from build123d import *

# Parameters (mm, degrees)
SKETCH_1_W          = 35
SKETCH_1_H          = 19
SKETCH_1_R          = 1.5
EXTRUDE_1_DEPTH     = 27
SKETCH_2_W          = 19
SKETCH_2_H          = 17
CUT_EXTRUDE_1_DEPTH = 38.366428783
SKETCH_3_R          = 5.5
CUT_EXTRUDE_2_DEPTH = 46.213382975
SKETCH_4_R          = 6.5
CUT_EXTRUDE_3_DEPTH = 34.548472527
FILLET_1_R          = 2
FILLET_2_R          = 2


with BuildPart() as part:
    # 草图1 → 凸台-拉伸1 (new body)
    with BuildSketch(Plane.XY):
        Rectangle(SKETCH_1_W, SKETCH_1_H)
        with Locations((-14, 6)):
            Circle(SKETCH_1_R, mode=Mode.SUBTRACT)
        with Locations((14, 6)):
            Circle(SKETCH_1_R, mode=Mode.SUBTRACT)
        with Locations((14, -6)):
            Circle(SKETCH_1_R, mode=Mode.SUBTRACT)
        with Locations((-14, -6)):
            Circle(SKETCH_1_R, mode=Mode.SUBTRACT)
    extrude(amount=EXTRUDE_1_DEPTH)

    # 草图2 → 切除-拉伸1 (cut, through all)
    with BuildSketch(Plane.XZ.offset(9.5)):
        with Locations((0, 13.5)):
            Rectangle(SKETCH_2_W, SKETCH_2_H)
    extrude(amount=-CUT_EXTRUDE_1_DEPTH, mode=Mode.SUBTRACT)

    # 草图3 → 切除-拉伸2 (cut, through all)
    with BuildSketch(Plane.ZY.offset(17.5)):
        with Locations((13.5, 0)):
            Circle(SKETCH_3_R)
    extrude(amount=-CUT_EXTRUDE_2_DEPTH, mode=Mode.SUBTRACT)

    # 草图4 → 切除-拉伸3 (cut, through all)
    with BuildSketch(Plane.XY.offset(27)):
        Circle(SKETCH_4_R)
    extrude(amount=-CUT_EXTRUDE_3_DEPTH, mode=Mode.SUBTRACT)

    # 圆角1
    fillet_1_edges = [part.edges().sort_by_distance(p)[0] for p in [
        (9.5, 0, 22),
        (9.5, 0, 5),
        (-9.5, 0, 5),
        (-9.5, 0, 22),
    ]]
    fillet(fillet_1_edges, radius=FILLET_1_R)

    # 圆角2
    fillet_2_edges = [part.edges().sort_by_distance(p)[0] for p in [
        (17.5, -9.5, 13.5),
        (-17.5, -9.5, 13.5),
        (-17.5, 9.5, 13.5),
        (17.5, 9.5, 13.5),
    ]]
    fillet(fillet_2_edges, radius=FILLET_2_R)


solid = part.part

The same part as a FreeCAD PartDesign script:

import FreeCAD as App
import Part
import Sketcher
from FreeCAD import Vector


def edges_at(feature, points):
    """Names of the edges that pass closest to the given points."""
    edges = feature.Shape.Edges
    near = lambda p: min(range(len(edges)), key=lambda i: edges[i].distToShape(Part.Vertex(*p))[0])
    return sorted({f"Edge{near(p) + 1}" for p in points})


def add_polygon(sketch, points):
    """Adds a closed chain of lines whose ends are joined by coincident constraints."""
    first, n = sketch.GeometryCount, len(points)
    for a, b in zip(points, points[1:] + points[:1]):
        sketch.addGeometry(Part.LineSegment(App.Vector(*a, 0), App.Vector(*b, 0)), False)
    for i in range(n):
        sketch.addConstraint(Sketcher.Constraint("Coincident", first + i, 2, first + (i + 1) % n, 1))

doc = App.newDocument("Part")
body = doc.addObject("PartDesign::Body", "Body")

# Sketch on XY plane
sketch1 = body.newObject("Sketcher::SketchObject", "Sketch")
sketch1.AttachmentSupport = (doc.getObject("XY_Plane"), [""])
sketch1.MapMode = "FlatFace"
add_polygon(sketch1, [(-17.5, 9.5), (-17.5, -9.5), (17.5, -9.5), (17.5, 9.5)])  # lines 0-3
sketch1.addGeometry(Part.Circle(Vector(-14, -6, 0), Vector(0, 0, 1), 1.5), False)  # 4
sketch1.addGeometry(Part.Circle(Vector(14, -6, 0), Vector(0, 0, 1), 1.5), False)  # 5
sketch1.addGeometry(Part.Circle(Vector(-14, 6, 0), Vector(0, 0, 1), 1.5), False)  # 6
sketch1.addGeometry(Part.Circle(Vector(14, 6, 0), Vector(0, 0, 1), 1.5), False)  # 7
sketch1.addConstraint([
    Sketcher.Constraint("Vertical", 0),
    Sketcher.Constraint("Horizontal", 1),
    Sketcher.Constraint("Vertical", 2),
    Sketcher.Constraint("Horizontal", 3),
    Sketcher.Constraint("Equal", 4, 5),
    Sketcher.Constraint("Equal", 5, 6),
    Sketcher.Constraint("Equal", 6, 7),
    Sketcher.Constraint("Symmetric", 5, 3, 6, 3, -1, 1),
    Sketcher.Constraint("Symmetric", 4, 3, 7, 3, -1, 1),
    Sketcher.Constraint("Symmetric", 0, 2, 2, 2, -1, 1),
    Sketcher.Constraint("Symmetric", 4, 3, 5, 3, -2),
    Sketcher.Constraint("Diameter", 4, 3.0),
    Sketcher.Constraint("DistanceX", 1, 1, 1, 2, 35.0),
    Sketcher.Constraint("DistanceY", 0, 2, 0, 1, 19.0),
    Sketcher.Constraint("DistanceX", 4, 3, -1, 1, 14.0),
    Sketcher.Constraint("DistanceY", 4, 3, -1, 1, 6.0),
])
pad1 = body.newObject("PartDesign::Pad", "Pad")
pad1.Profile = sketch1
pad1.Length = 27

# Sketch on XZ plane
sketch2 = body.newObject("Sketcher::SketchObject", "Sketch001")
sketch2.AttachmentSupport = (doc.getObject("XZ_Plane"), [""])
sketch2.MapMode = "FlatFace"
sketch2.AttachmentOffset = App.Placement(Vector(0, 0, 9.5), App.Rotation())
add_polygon(sketch2, [(-10, 22), (-10, 5), (10, 5), (10, 22)])  # lines 0-3
sketch2.addConstraint([
    Sketcher.Constraint("Vertical", 0),
    Sketcher.Constraint("Horizontal", 1),
    Sketcher.Constraint("Vertical", 2),
    Sketcher.Constraint("Horizontal", 3),
    Sketcher.Constraint("DistanceX", 1, 1, 1, 2, 19.0),
    Sketcher.Constraint("DistanceY", 0, 2, 0, 1, 17.0),
    Sketcher.Constraint("DistanceY", -1, 1, 0, 2, 5.0),
    Sketcher.Constraint("DistanceX", 0, 2, -1, 1, 9.5),
])
pocket1 = body.newObject("PartDesign::Pocket", "Pocket")
pocket1.Profile = sketch2
pocket1.Type = "ThroughAll"

# Sketch on YZ plane
sketch3 = body.newObject("Sketcher::SketchObject", "Sketch002")
sketch3.AttachmentSupport = (doc.getObject("YZ_Plane"), [""])
sketch3.MapMode = "FlatFace"
sketch3.AttachmentOffset = App.Placement(Vector(0, 0, -17.5), App.Rotation())
sketch3.addGeometry(Part.Circle(Vector(0, 14, 0), Vector(0, 0, 1), 6), False)
sketch3.addConstraint([
    Sketcher.Constraint("PointOnObject", 0, 3, -2),
    Sketcher.Constraint("Diameter", 0, 11.0),
    Sketcher.Constraint("DistanceY", -1, 1, 0, 3, 13.5),
])
pocket2 = body.newObject("PartDesign::Pocket", "Pocket001")
pocket2.Profile = sketch3
pocket2.Type = "ThroughAll"
pocket2.Reversed = True

# Sketch on XY plane
sketch4 = body.newObject("Sketcher::SketchObject", "Sketch003")
sketch4.AttachmentSupport = (doc.getObject("XY_Plane"), [""])
sketch4.MapMode = "FlatFace"
sketch4.AttachmentOffset = App.Placement(Vector(0, 0, 27), App.Rotation())
sketch4.addGeometry(Part.Circle(Vector(0, 0, 0), Vector(0, 0, 1), 6), False)
sketch4.addConstraint([
    Sketcher.Constraint("Coincident", 0, 3, -1, 1),
    Sketcher.Constraint("Diameter", 0, 13.0),
])
pocket3 = body.newObject("PartDesign::Pocket", "Pocket002")
pocket3.Profile = sketch4
pocket3.Type = "ThroughAll"
doc.recompute()

fillet = body.newObject("PartDesign::Fillet", "Fillet")
fillet.Base = (pocket3, edges_at(pocket3, [
    (9.5, 0, 22),
    (9.5, 0, 5),
    (-9.5, 0, 5),
    (-9.5, 0, 22),
]))
fillet.Radius = 2
doc.recompute()

fillet2 = body.newObject("PartDesign::Fillet", "Fillet001")
fillet2.Base = (fillet, edges_at(fillet, [
    (17.5, -9.5, 13.5),
    (-17.5, -9.5, 13.5),
    (-17.5, 9.5, 13.5),
    (17.5, 9.5, 13.5),
]))
fillet2.Radius = 2

doc.recompute()
